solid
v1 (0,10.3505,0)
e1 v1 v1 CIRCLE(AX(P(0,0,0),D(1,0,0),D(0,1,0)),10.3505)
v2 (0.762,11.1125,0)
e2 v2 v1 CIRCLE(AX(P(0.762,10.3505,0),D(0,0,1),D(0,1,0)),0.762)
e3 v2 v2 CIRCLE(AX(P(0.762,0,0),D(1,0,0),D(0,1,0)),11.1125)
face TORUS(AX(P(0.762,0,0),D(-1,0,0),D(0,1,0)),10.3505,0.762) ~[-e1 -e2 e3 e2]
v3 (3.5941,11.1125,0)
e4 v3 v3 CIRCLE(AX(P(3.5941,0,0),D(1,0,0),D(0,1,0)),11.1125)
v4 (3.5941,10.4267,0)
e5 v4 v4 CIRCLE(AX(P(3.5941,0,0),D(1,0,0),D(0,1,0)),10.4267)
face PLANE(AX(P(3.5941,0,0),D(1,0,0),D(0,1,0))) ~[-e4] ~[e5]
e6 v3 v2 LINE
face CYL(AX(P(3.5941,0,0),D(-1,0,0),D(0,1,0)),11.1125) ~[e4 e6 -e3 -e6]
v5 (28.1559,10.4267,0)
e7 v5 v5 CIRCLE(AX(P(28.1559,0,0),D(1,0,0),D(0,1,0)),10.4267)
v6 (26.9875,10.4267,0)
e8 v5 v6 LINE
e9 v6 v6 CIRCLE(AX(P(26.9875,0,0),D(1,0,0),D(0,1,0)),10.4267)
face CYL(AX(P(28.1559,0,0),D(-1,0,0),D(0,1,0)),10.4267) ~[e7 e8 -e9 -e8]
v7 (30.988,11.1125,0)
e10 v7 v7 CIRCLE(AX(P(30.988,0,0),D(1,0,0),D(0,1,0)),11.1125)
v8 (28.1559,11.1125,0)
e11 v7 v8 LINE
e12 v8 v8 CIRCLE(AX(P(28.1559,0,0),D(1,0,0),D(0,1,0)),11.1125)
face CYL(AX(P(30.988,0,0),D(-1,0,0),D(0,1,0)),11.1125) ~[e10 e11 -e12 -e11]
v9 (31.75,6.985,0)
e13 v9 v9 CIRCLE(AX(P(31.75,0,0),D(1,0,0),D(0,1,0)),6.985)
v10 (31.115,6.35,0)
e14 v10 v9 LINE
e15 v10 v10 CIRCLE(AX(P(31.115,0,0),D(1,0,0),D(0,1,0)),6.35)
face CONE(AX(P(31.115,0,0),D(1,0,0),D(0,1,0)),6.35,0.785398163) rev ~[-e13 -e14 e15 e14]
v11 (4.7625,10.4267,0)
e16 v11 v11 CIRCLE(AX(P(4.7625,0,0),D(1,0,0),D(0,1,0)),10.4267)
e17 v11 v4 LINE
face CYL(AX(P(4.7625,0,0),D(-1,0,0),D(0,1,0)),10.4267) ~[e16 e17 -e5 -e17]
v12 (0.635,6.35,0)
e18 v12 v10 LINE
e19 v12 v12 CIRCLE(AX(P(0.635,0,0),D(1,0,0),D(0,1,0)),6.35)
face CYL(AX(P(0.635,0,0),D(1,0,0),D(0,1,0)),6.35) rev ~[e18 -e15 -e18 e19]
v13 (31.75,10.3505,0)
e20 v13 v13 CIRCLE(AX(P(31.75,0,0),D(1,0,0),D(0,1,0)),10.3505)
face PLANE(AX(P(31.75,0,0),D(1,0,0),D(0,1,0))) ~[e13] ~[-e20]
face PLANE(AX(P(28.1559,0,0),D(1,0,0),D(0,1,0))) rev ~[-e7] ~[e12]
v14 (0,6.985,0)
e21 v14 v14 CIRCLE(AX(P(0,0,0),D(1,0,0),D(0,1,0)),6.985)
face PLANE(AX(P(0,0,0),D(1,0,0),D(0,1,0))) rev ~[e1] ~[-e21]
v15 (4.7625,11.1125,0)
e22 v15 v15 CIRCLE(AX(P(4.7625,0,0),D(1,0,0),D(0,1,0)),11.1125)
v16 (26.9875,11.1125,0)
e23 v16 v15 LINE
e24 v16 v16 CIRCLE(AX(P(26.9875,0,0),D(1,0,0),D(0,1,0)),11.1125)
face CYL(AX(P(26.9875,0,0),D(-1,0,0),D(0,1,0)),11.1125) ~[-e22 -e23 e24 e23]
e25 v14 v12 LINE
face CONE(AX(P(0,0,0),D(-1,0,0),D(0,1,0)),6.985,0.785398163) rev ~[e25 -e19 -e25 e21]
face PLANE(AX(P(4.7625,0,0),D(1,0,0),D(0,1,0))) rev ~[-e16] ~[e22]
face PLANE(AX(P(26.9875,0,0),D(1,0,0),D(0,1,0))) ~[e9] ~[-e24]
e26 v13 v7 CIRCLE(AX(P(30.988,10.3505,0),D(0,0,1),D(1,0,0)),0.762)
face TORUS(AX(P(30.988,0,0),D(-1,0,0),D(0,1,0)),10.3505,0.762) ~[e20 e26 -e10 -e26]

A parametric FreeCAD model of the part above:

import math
import FreeCAD as App
import Part
import Sketcher
Q = App.Units.Quantity

doc = App.newDocument("Part")
params = doc.addObject("Spreadsheet::Sheet", "Params")
for row, (alias, value) in enumerate([
    ("sketch1_radius", "0.03 in"),
    ("sketch1_width", "1.2 in"),
    ("sketch1_width2", "0.046 in"),
    ("sketch1_width3", "0.875 in"),
    ("sketch1_height", "0.027 in"),
    ("revolution_angle", "360 deg"),
], start=1):
    params.set(f"A{row}", alias)
    params.set(f"B{row}", "=" + value)
    params.setAlias(f"B{row}", alias)

body = doc.addObject("PartDesign::Body", "Body")

sketch1 = doc.addObject("Sketcher::SketchObject", "Sketch")
body.addObject(sketch1)
sketch1.AttachmentSupport = (doc.XY_Plane, [""])
sketch1.MapMode = "FlatFace"
sketch1.addGeometry(Part.LineSegment(App.Vector(0, 10.4, 0), App.Vector(0, 7, 0)), False)
sketch1.addGeometry(Part.LineSegment(App.Vector(0, 7, 0), App.Vector(0.6, 6.3, 0)), False)
sketch1.addGeometry(Part.LineSegment(App.Vector(0.6, 6.3, 0), App.Vector(31.1, 6.3, 0)), False)
sketch1.addGeometry(Part.LineSegment(App.Vector(31.1, 6.3, 0), App.Vector(31.8, 7, 0)), False)
sketch1.addGeometry(Part.LineSegment(App.Vector(31.8, 7, 0), App.Vector(31.8, 10.4, 0)), False)
sketch1.addGeometry(Part.ArcOfCircle(Part.Circle(App.Vector(31, 10.4, 0), App.Vector(0, 0, 1), 0.8), math.radians(0), math.radians(90)), False)
sketch1.addGeometry(Part.LineSegment(App.Vector(31, 11.1, 0), App.Vector(28.2, 11.1, 0)), False)
sketch1.addGeometry(Part.LineSegment(App.Vector(28.2, 11.1, 0), App.Vector(28.2, 10.4, 0)), False)
sketch1.addGeometry(Part.LineSegment(App.Vector(28.2, 10.4, 0), App.Vector(27, 10.4, 0)), False)
sketch1.addGeometry(Part.LineSegment(App.Vector(27, 10.4, 0), App.Vector(27, 11.1, 0)), False)
sketch1.addGeometry(Part.LineSegment(App.Vector(27, 11.1, 0), App.Vector(4.8, 11.1, 0)), False)
sketch1.addGeometry(Part.LineSegment(App.Vector(4.8, 11.1, 0), App.Vector(4.8, 10.4, 0)), False)
sketch1.addGeometry(Part.LineSegment(App.Vector(4.8, 10.4, 0), App.Vector(3.6, 10.4, 0)), False)
sketch1.addGeometry(Part.LineSegment(App.Vector(3.6, 10.4, 0), App.Vector(3.6, 11.1, 0)), False)
sketch1.addGeometry(Part.LineSegment(App.Vector(3.6, 11.1, 0), App.Vector(0.8, 11.1, 0)), False)
sketch1.addGeometry(Part.ArcOfCircle(Part.Circle(App.Vector(0.8, 10.4, 0), App.Vector(0, 0, 1), 0.8), math.radians(90), math.radians(180)), False)
sketch1.addConstraint(Sketcher.Constraint("Coincident", 0, 2, 1, 1))
sketch1.addConstraint(Sketcher.Constraint("Coincident", 1, 2, 2, 1))
sketch1.addConstraint(Sketcher.Constraint("Coincident", 2, 2, 3, 1))
sketch1.addConstraint(Sketcher.Constraint("Coincident", 3, 2, 4, 1))
sketch1.addConstraint(Sketcher.Constraint("Tangent", 4, 2, 5, 1))
sketch1.addConstraint(Sketcher.Constraint("Tangent", 5, 2, 6, 1))
sketch1.addConstraint(Sketcher.Constraint("Coincident", 6, 2, 7, 1))
sketch1.addConstraint(Sketcher.Constraint("Coincident", 7, 2, 8, 1))
sketch1.addConstraint(Sketcher.Constraint("Coincident", 8, 2, 9, 1))
sketch1.addConstraint(Sketcher.Constraint("Coincident", 9, 2, 10, 1))
sketch1.addConstraint(Sketcher.Constraint("Coincident", 10, 2, 11, 1))
sketch1.addConstraint(Sketcher.Constraint("Coincident", 11, 2, 12, 1))
sketch1.addConstraint(Sketcher.Constraint("Coincident", 12, 2, 13, 1))
sketch1.addConstraint(Sketcher.Constraint("Coincident", 13, 2, 14, 1))
sketch1.addConstraint(Sketcher.Constraint("Tangent", 14, 2, 15, 1))
sketch1.addConstraint(Sketcher.Constraint("Tangent", 15, 2, 0, 1))
sketch1.addConstraint(Sketcher.Constraint("Vertical", 0))
sketch1.addConstraint(Sketcher.Constraint("Horizontal", 2))
sketch1.addConstraint(Sketcher.Constraint("Vertical", 4))
sketch1.addConstraint(Sketcher.Constraint("Horizontal", 6))
sketch1.addConstraint(Sketcher.Constraint("Vertical", 7))
sketch1.addConstraint(Sketcher.Constraint("Horizontal", 8))
sketch1.addConstraint(Sketcher.Constraint("Vertical", 9))
sketch1.addConstraint(Sketcher.Constraint("Horizontal", 10))
sketch1.addConstraint(Sketcher.Constraint("Vertical", 11))
sketch1.addConstraint(Sketcher.Constraint("Horizontal", 12))
sketch1.addConstraint(Sketcher.Constraint("Vertical", 13))
sketch1.addConstraint(Sketcher.Constraint("Horizontal", 14))
sketch1.addConstraint(Sketcher.Constraint("Equal", 5, 15))
sketch1.addConstraint(Sketcher.Constraint("PointOnObject", 0, 2, -2))
sketch1.addConstraint(Sketcher.Constraint("Perpendicular", 1, 3))
sketch1.addConstraint(Sketcher.Constraint("Horizontal", 5, 3, 15, 3))
sketch1.addConstraint(Sketcher.Constraint("Horizontal", 0, 2, 3, 2))
sketch1.addConstraint(Sketcher.Constraint("Horizontal", 6, 2, 9, 2))
sketch1.addConstraint(Sketcher.Constraint("Horizontal", 8, 2, 11, 2))
sketch1.addConstraint(Sketcher.Constraint("Equal", 8, 12))
sketch1.addConstraint(Sketcher.Constraint("Equal", 6, 14))
sketch1.addConstraint(Sketcher.Constraint("Equal", 1, 3))
sketch1.addConstraint(Sketcher.Constraint("Radius", 5, Q("0.03 in")))
sketch1.addConstraint(Sketcher.Constraint("DistanceX", 2, 1, 2, 2, Q("1.2 in")))
sketch1.addConstraint(Sketcher.Constraint("DistanceX", 8, 2, 8, 1, Q("0.046 in")))
sketch1.addConstraint(Sketcher.Constraint("DistanceX", 10, 2, 10, 1, Q("0.875 in")))
sketch1.addConstraint(Sketcher.Constraint("DistanceY", 7, 2, 7, 1, Q("0.027 in")))
sketch1.addConstraint(Sketcher.Constraint("DistanceX", -1, 1, 5, 3, Q("1.22 in")))
sketch1.addConstraint(Sketcher.Constraint("DistanceY", -1, 1, 1, 2, Q("0.25 in")))
sketch1.addConstraint(Sketcher.Constraint("DistanceY", 0, 2, 0, 1, Q("0.1325 in")))
sketch1.setExpression("Constraints[38]", "Params.sketch1_radius")
sketch1.setExpression("Constraints[39]", "Params.sketch1_width")
sketch1.setExpression("Constraints[40]", "Params.sketch1_width2")
sketch1.setExpression("Constraints[41]", "Params.sketch1_width3")
sketch1.setExpression("Constraints[42]", "Params.sketch1_height")
revolution = doc.addObject("PartDesign::Revolution", "Revolution")
body.addObject(revolution)
revolution.Profile = sketch1
revolution.ReferenceAxis = (sketch1, ["H_Axis"])
revolution.setExpression("Angle", "Params.revolution_angle")

doc.recompute()
